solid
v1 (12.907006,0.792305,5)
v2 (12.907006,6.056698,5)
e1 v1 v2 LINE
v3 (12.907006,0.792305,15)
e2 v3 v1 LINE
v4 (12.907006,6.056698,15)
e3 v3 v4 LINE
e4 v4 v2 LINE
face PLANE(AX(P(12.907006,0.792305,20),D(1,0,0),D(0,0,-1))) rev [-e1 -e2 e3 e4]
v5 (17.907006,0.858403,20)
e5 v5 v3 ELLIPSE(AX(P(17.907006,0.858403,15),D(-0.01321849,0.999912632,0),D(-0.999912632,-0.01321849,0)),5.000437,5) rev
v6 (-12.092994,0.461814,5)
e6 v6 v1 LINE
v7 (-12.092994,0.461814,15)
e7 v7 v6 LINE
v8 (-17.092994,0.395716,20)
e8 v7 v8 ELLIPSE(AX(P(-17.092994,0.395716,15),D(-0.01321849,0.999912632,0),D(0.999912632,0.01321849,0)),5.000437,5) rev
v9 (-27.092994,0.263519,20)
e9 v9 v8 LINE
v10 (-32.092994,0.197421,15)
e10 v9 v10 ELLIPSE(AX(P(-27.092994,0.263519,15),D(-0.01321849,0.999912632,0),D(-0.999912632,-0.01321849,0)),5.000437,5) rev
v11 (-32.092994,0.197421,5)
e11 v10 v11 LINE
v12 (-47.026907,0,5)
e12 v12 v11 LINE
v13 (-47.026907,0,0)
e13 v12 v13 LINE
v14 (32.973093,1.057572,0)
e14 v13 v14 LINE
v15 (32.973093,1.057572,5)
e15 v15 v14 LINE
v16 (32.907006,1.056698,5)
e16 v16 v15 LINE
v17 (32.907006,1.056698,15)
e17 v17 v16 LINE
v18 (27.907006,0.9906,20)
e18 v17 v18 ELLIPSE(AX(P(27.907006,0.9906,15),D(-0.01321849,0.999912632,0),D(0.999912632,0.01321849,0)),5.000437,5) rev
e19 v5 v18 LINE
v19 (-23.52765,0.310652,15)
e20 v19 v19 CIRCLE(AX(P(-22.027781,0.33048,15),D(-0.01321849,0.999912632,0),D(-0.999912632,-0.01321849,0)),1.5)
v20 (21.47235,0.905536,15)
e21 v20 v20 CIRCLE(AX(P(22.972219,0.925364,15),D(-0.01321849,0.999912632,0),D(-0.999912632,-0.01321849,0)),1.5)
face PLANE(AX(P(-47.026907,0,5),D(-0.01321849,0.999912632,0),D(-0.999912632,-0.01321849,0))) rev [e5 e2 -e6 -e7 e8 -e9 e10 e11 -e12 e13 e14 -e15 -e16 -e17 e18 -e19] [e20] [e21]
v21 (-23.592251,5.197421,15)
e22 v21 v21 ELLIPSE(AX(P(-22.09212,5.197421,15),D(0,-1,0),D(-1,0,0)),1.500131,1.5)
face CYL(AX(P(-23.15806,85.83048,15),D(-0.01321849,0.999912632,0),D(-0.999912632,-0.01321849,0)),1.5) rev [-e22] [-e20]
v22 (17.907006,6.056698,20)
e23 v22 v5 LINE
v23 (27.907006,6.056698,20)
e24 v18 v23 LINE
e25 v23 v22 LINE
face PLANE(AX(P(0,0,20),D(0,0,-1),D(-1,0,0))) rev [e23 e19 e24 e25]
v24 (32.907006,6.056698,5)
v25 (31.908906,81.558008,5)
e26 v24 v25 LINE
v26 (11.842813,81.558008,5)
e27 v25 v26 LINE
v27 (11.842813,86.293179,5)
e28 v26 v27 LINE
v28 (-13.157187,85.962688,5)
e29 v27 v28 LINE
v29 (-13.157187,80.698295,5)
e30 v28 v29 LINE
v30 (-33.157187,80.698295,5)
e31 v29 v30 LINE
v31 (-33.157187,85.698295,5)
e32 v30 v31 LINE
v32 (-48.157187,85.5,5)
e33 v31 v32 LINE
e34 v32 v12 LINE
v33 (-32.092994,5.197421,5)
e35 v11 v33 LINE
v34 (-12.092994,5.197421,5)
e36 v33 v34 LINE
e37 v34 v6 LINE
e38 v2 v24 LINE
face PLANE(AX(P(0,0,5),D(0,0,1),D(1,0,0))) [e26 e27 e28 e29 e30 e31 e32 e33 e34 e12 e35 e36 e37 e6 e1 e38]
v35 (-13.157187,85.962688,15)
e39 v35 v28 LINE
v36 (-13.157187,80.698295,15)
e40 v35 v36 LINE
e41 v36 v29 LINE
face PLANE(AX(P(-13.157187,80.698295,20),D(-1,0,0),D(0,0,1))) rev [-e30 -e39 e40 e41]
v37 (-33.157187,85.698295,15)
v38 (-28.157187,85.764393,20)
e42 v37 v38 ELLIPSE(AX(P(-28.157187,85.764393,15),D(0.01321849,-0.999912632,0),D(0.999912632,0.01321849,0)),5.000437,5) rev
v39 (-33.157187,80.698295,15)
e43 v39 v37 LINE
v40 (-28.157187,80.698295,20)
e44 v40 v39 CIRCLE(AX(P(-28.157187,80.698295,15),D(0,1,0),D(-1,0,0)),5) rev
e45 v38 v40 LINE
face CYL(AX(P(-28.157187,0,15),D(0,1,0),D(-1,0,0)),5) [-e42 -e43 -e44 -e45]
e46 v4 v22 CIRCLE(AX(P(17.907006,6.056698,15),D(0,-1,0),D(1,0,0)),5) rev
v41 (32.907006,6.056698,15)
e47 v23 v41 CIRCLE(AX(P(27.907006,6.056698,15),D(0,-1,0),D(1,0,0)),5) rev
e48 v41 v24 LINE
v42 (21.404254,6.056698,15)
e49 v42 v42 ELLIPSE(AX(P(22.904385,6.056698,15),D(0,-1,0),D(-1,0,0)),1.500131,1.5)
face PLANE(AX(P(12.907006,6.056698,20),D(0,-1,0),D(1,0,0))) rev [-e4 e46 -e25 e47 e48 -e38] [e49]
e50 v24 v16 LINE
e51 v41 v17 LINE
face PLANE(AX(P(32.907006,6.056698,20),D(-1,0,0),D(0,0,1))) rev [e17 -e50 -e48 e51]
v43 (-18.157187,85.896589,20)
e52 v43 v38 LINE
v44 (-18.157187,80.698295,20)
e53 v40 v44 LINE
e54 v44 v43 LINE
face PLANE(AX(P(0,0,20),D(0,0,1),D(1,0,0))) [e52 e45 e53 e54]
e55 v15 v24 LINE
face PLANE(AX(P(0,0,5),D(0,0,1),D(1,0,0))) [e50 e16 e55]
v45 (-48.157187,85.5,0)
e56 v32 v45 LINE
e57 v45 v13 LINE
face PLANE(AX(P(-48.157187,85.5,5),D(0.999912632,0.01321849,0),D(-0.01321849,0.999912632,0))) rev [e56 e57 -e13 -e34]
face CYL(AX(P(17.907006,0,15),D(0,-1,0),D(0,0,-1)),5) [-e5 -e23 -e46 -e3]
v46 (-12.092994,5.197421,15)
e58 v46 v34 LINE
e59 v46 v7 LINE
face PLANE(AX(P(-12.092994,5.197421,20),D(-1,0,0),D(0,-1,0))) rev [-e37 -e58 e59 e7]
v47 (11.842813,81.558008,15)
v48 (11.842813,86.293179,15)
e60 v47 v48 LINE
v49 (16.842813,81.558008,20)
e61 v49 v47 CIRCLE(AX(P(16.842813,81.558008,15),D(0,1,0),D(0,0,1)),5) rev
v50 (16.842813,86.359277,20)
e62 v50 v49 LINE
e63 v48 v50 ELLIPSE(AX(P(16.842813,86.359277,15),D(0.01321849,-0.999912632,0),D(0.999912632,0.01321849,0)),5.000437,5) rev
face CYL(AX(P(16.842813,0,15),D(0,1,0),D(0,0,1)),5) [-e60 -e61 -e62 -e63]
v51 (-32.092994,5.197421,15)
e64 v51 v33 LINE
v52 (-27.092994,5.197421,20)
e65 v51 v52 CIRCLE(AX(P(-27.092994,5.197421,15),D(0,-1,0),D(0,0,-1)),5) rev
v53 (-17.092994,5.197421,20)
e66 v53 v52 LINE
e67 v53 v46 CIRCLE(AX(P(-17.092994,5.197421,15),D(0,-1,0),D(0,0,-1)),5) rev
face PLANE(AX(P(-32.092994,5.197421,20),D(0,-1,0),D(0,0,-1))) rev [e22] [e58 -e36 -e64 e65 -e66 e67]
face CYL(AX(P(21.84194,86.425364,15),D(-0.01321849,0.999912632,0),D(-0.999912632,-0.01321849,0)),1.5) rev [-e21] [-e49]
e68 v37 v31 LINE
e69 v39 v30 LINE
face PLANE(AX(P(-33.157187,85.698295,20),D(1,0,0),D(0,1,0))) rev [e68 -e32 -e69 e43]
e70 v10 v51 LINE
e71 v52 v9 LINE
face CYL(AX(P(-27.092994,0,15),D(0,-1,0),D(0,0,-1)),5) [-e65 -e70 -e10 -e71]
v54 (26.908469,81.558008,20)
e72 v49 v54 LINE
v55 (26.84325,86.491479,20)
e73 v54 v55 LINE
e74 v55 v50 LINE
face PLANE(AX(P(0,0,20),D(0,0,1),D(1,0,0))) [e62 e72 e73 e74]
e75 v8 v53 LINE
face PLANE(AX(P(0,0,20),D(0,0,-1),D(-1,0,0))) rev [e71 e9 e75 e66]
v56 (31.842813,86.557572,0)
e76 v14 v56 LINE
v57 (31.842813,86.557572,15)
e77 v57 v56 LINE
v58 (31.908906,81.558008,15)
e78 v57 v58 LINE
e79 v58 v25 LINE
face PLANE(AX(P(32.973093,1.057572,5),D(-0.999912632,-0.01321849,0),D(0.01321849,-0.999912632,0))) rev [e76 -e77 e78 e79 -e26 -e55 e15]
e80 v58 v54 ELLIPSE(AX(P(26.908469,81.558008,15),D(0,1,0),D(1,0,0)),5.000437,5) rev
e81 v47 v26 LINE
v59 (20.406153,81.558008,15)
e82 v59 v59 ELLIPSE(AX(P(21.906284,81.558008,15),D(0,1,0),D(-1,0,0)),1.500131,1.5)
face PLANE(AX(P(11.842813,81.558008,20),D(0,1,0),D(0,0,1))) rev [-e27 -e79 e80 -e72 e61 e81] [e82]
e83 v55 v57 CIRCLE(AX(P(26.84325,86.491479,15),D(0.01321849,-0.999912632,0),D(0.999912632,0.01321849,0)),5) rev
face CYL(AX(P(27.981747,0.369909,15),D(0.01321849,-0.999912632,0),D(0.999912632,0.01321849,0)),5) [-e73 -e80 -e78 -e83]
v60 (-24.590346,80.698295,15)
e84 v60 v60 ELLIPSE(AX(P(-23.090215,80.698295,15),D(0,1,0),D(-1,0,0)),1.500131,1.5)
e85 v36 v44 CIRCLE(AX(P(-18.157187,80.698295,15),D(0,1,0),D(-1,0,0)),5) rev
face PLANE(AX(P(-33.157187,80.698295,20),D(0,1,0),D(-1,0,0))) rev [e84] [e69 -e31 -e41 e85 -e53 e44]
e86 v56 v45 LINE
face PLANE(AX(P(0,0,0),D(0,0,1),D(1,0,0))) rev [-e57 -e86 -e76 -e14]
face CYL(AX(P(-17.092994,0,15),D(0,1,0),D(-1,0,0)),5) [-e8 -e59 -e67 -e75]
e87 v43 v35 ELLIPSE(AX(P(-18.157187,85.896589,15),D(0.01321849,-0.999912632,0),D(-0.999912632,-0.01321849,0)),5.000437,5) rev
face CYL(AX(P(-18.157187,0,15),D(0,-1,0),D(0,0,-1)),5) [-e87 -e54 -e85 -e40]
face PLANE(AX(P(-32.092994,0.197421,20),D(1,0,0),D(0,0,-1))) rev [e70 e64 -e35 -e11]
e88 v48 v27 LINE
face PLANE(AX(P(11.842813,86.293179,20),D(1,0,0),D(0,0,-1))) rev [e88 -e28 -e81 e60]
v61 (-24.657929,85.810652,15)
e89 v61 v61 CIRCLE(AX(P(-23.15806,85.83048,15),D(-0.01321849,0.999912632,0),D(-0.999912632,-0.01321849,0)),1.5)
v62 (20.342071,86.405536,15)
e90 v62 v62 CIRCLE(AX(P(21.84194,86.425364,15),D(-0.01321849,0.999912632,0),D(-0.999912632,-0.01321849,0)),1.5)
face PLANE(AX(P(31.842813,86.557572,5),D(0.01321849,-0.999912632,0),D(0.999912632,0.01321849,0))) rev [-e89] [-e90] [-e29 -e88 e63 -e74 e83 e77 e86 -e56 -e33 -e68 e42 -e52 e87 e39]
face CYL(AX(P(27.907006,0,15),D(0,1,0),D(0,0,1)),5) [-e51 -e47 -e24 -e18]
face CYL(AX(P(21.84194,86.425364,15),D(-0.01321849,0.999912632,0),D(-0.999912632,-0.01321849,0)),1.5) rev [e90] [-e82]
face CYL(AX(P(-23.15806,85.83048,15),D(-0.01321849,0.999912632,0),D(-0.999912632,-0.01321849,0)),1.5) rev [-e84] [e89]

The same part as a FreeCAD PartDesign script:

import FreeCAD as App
import Part
import Sketcher
from FreeCAD import Vector


def edges_at(feature, points):
    """Names of the edges that pass closest to the given points."""
    edges = feature.Shape.Edges
    near = lambda p: min(range(len(edges)), key=lambda i: edges[i].distToShape(Part.Vertex(*p))[0])
    return sorted({f"Edge{near(p) + 1}" for p in points})


def add_polygon(sketch, points):
    """Adds a closed chain of lines whose ends are joined by coincident constraints."""
    first, n = sketch.GeometryCount, len(points)
    for a, b in zip(points, points[1:] + points[:1]):
        sketch.addGeometry(Part.LineSegment(App.Vector(*a, 0), App.Vector(*b, 0)), False)
    for i in range(n):
        sketch.addConstraint(Sketcher.Constraint("Coincident", first + i, 2, first + (i + 1) % n, 1))

doc = App.newDocument("Part")
body = doc.addObject("PartDesign::Body", "Body")

# Sketch on XY plane
sketch1 = body.newObject("Sketcher::SketchObject", "Sketch")
sketch1.AttachmentSupport = (doc.getObject("XY_Plane"), [""])
sketch1.MapMode = "FlatFace"
add_polygon(sketch1, [(-47, 0), (33, 1), (32, 87), (-48, 86)])  # lines 0-3
sketch1.addConstraint(Sketcher.Constraint("PointOnObject", 3, 2, -1))
sketch1.addConstraint(Sketcher.Constraint("Perpendicular", 0, 1))
sketch1.addConstraint(Sketcher.Constraint("Perpendicular", 1, 2))
sketch1.addConstraint(Sketcher.Constraint("Perpendicular", 2, 3))
sketch1.addConstraint(Sketcher.Constraint("DistanceX", 2, 2, 1, 2, 80.0))
sketch1.addConstraint(Sketcher.Constraint("DistanceY", -1, 1, 2, 2, 85.5))
sketch1.addConstraint(Sketcher.Constraint("Distance", 0, 80.00699))
sketch1.addConstraint(Sketcher.Constraint("DistanceX", -1, 1, 0, 2, 32.973093))
pad1 = body.newObject("PartDesign::Pad", "Pad")
pad1.Profile = sketch1
pad1.Length = 5

# Sketch on XY plane
sketch2 = body.newObject("Sketcher::SketchObject", "Sketch001")
sketch2.AttachmentSupport = (doc.getObject("XY_Plane"), [""])
sketch2.MapMode = "FlatFace"
add_polygon(sketch2, [(-33.2, 85.7), (-33.2, 80.7), (-13.2, 80.7), (-13.2, 86)])  # lines 0-3
add_polygon(sketch2, [(11.8, 86.3), (11.8, 81.6), (31.9, 81.6), (31.8, 86.6)])  # lines 4-7
add_polygon(sketch2, [(-32.1, 5.2), (-32.1, 0.2), (-12.1, 0.5), (-12.1, 5.2)])  # lines 8-11
add_polygon(sketch2, [(12.9, 6.1), (12.9, 0.8), (32.9, 1.1), (32.9, 6.1)])  # lines 12-15
sketch2.addConstraint(Sketcher.Constraint("Vertical", 0))
sketch2.addConstraint(Sketcher.Constraint("Horizontal", 1))
sketch2.addConstraint(Sketcher.Constraint("Vertical", 2))
sketch2.addConstraint(Sketcher.Constraint("Vertical", 4))
sketch2.addConstraint(Sketcher.Constraint("Horizontal", 5))
sketch2.addConstraint(Sketcher.Constraint("Vertical", 8))
sketch2.addConstraint(Sketcher.Constraint("Vertical", 10))
sketch2.addConstraint(Sketcher.Constraint("Horizontal", 11))
sketch2.addConstraint(Sketcher.Constraint("Vertical", 12))
sketch2.addConstraint(Sketcher.Constraint("Vertical", 14))
sketch2.addConstraint(Sketcher.Constraint("Horizontal", 15))
sketch2.addConstraint(Sketcher.Constraint("Perpendicular", 3, 6))
sketch2.addConstraint(Sketcher.Constraint("Perpendicular", 6, 7))
sketch2.addConstraint(Sketcher.Constraint("Parallel", 7, 9))
sketch2.addConstraint(Sketcher.Constraint("Parallel", 9, 13))
sketch2.addConstraint(Sketcher.Constraint("Equal", 1, 11))
sketch2.addConstraint(Sketcher.Constraint("Equal", 11, 15))
sketch2.addConstraint(Sketcher.Constraint("Equal", 0, 8))
sketch2.addConstraint(Sketcher.Constraint("Equal", 2, 12))
sketch2.addConstraint(Sketcher.Constraint("Equal", 3, 7))
sketch2.addConstraint(Sketcher.Constraint("DistanceX", 1, 1, 1, 2, 20.0))
sketch2.addConstraint(Sketcher.Constraint("DistanceY", 0, 2, 0, 1, 5.0))
sketch2.addConstraint(Sketcher.Constraint("Distance", 6, 5.0))
sketch2.addConstraint(Sketcher.Constraint("DistanceX", 1, 2, 4, 2, 25.0))
sketch2.addConstraint(Sketcher.Constraint("DistanceX", 9, 2, 12, 2, 25.0))
sketch2.addConstraint(Sketcher.Constraint("DistanceY", 4, 2, 4, 1, 4.73517))
sketch2.addConstraint(Sketcher.Constraint("DistanceY", -1, 1, 4, 2, 81.558008))
sketch2.addConstraint(Sketcher.Constraint("DistanceY", -1, 1, 8, 2, 0.197421))
sketch2.addConstraint(Sketcher.Constraint("DistanceY", 4, 2, 2, 2, 4.404679))
sketch2.addConstraint(Sketcher.Constraint("DistanceY", 9, 2, 12, 2, 0.330491))
sketch2.addConstraint(Sketcher.Constraint("DistanceX", 0, 2, -1, 1, 33.157187))
sketch2.addConstraint(Sketcher.Constraint("DistanceX", 8, 2, -1, 1, 32.092994))
pad2 = body.newObject("PartDesign::Pad", "Pad001")
pad2.Profile = sketch2
pad2.Length = 20
doc.recompute()

fillet = body.newObject("PartDesign::Fillet", "Fillet")
fillet.Base = (pad2, edges_at(pad2, [
    (-33.157, 83.198, 20),
    (-13.157, 83.33, 20),
    (31.876, 84.058, 20),
    (11.843, 83.926, 20),
    (-12.093, 2.83, 20),
    (-32.093, 2.697, 20),
    (32.907, 3.557, 20),
    (12.907, 3.425, 20),
]))
fillet.Radius = 5

# Sketch on an angled plane
sketch3 = body.newObject("Sketcher::SketchObject", "Sketch002")
sketch3.Placement = App.Placement(Vector(-1.138497, 86.12157, 0), App.Rotation(Vector(0.999912632, 0.01321849, 0), Vector(0, 0, -1), Vector(-0.01321849, 0.999912632, 0), "ZXY"))
sketch3.addGeometry(Part.Circle(Vector(-22, -15, 0), Vector(0, 0, 1), 1.5), False)
sketch3.addGeometry(Part.Circle(Vector(23, -15, 0), Vector(0, 0, 1), 1.5), False)
sketch3.addConstraint(Sketcher.Constraint("Equal", 0, 1))
sketch3.addConstraint(Sketcher.Constraint("Horizontal", 0, 3, 1, 3))
sketch3.addConstraint(Sketcher.Constraint("Diameter", 0, 3.0))
sketch3.addConstraint(Sketcher.Constraint("DistanceY", 0, 3, -1, 1, 15.0))
sketch3.addConstraint(Sketcher.Constraint("DistanceX", 0, 3, 1, 3, 45.003932))
sketch3.addConstraint(Sketcher.Constraint("DistanceX", 0, 3, -1, 1, 22.021488))
doc.recompute()
hole = body.newObject("PartDesign::Hole", "Hole")
hole.Profile = sketch3
hole.ThreadType = "None"
hole.Diameter = 3
hole.DepthType = "ThroughAll"

doc.recompute()
